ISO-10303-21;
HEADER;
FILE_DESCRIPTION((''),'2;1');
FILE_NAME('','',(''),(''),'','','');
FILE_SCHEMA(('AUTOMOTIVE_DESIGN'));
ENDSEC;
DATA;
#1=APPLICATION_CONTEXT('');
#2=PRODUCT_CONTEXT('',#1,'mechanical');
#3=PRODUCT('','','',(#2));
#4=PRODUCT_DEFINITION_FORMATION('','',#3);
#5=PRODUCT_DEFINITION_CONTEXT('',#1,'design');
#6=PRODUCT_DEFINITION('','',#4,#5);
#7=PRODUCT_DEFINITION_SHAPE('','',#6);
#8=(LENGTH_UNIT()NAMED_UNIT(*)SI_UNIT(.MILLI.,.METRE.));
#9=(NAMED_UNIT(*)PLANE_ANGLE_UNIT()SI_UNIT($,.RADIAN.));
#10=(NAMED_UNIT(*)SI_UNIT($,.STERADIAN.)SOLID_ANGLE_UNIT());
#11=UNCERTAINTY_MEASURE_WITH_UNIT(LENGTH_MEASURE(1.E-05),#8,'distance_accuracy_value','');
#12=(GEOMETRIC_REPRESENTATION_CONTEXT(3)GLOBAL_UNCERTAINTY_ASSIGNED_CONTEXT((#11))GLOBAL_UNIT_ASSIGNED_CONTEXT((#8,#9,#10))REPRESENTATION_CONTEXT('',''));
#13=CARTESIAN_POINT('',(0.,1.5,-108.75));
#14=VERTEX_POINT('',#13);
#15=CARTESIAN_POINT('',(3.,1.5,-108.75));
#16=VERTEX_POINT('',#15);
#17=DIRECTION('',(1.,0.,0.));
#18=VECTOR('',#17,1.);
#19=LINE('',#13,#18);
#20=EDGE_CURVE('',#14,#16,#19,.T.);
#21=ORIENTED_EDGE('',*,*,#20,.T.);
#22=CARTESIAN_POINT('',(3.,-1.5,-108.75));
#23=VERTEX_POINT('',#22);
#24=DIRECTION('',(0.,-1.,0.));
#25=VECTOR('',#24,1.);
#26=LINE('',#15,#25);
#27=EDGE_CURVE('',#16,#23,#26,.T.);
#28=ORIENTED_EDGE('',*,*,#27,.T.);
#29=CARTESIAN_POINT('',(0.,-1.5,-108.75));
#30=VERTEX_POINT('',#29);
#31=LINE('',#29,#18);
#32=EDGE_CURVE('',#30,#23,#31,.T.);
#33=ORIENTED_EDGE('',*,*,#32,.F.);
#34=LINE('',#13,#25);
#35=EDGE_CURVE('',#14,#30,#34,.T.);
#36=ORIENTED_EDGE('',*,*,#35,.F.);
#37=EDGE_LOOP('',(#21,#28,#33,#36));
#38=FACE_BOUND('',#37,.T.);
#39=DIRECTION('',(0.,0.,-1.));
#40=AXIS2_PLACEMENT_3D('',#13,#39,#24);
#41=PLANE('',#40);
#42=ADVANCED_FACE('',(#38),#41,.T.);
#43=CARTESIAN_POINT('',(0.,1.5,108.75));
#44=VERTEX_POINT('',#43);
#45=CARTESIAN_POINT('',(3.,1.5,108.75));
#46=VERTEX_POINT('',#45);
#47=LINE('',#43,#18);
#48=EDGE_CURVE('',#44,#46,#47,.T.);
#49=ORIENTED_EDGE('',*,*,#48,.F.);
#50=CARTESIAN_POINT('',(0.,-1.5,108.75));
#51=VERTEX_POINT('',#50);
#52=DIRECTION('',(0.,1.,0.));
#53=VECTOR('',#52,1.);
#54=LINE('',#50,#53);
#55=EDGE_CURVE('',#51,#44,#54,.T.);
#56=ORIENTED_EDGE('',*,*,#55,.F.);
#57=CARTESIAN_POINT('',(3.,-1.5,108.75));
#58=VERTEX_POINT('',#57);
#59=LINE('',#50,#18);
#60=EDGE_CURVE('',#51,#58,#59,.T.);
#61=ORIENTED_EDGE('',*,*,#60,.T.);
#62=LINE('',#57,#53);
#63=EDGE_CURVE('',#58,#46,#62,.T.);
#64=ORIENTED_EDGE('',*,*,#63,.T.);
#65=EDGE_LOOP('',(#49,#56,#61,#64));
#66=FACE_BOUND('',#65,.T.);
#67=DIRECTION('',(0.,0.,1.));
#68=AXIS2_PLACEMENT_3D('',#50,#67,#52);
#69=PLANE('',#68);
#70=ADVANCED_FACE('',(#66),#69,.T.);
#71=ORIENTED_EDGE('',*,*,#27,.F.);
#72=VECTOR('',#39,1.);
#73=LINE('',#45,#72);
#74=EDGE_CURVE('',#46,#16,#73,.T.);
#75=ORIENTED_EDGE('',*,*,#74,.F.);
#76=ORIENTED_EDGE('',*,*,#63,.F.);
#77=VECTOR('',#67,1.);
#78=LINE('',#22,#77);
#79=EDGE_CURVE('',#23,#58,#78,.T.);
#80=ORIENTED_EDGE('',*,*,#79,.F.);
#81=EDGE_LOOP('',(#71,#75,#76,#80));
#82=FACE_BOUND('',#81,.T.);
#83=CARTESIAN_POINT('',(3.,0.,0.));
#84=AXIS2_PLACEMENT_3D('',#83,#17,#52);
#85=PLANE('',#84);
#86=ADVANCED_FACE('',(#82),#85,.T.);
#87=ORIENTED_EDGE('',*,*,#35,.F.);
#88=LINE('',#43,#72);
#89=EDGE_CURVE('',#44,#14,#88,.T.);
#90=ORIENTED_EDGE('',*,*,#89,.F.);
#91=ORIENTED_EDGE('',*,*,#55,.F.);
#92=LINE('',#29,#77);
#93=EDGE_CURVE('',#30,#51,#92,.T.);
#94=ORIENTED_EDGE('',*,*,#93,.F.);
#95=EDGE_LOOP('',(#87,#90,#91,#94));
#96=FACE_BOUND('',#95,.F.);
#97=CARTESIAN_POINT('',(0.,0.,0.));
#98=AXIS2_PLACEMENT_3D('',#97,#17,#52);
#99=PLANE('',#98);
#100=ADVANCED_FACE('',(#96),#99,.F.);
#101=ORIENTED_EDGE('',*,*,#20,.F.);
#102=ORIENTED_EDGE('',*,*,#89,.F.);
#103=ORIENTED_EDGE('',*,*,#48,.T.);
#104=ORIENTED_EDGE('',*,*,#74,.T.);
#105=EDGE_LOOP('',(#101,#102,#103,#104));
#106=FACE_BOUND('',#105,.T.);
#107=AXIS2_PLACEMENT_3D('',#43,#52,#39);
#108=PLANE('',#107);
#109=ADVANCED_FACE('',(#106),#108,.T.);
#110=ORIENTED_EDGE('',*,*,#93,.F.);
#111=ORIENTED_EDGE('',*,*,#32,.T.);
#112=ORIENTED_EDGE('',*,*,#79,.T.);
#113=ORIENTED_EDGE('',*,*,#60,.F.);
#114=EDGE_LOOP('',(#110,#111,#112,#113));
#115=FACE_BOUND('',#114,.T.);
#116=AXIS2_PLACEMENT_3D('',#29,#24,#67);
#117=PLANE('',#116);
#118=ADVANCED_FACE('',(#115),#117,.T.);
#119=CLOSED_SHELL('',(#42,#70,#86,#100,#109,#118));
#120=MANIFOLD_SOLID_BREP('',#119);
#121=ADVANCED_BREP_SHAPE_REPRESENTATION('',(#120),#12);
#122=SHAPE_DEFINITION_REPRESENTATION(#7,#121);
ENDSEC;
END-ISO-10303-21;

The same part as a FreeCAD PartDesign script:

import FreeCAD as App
import Part
import Sketcher
Q = App.Units.Quantity


def add_polygon(sketch, points):
    """Adds a closed chain of lines whose ends are joined by coincident constraints."""
    first, n = sketch.GeometryCount, len(points)
    for a, b in zip(points, points[1:] + points[:1]):
        sketch.addGeometry(Part.LineSegment(App.Vector(*a, 0), App.Vector(*b, 0)), False)
    for i in range(n):
        sketch.addConstraint(Sketcher.Constraint("Coincident", first + i, 2, first + (i + 1) % n, 1))

doc = App.newDocument("Part")
params = doc.addObject("Spreadsheet::Sheet", "Params")
for row, (alias, value) in enumerate([
    ("sketch1_height", "8.563 in"),
    ("pad1_length", "0.1181102 in"),
], start=1):
    params.set(f"A{row}", alias)
    params.set(f"B{row}", "=" + value)
    params.setAlias(f"B{row}", alias)

body = doc.addObject("PartDesign::Body", "Body")

sketch1 = body.newObject("Sketcher::SketchObject", "Sketch")
sketch1.AttachmentSupport = (doc.getObject("YZ_Plane"), [""])
sketch1.MapMode = "FlatFace"
add_polygon(sketch1, [(1.5, 108.8), (-1.5, 108.8), (-1.5, -108.8), (1.5, -108.8)])
sketch1.addConstraint([
    Sketcher.Constraint("Horizontal", 0),
    Sketcher.Constraint("Vertical", 1),
    Sketcher.Constraint("Horizontal", 2),
    Sketcher.Constraint("Vertical", 3),
    Sketcher.Constraint("Symmetric", 0, 2, 2, 2, -1, 1),
    Sketcher.Constraint("DistanceY", 1, 2, 1, 1, Q("8.563 in")),
    Sketcher.Constraint("DistanceX", 0, 2, 0, 1, Q("0.1181 in")),
])
sketch1.setExpression("Constraints[9]", "Params.sketch1_height")
pad1 = body.newObject("PartDesign::Pad", "Pad")
pad1.Profile = sketch1
pad1.setExpression("Length", "Params.pad1_length")

doc.recompute()
